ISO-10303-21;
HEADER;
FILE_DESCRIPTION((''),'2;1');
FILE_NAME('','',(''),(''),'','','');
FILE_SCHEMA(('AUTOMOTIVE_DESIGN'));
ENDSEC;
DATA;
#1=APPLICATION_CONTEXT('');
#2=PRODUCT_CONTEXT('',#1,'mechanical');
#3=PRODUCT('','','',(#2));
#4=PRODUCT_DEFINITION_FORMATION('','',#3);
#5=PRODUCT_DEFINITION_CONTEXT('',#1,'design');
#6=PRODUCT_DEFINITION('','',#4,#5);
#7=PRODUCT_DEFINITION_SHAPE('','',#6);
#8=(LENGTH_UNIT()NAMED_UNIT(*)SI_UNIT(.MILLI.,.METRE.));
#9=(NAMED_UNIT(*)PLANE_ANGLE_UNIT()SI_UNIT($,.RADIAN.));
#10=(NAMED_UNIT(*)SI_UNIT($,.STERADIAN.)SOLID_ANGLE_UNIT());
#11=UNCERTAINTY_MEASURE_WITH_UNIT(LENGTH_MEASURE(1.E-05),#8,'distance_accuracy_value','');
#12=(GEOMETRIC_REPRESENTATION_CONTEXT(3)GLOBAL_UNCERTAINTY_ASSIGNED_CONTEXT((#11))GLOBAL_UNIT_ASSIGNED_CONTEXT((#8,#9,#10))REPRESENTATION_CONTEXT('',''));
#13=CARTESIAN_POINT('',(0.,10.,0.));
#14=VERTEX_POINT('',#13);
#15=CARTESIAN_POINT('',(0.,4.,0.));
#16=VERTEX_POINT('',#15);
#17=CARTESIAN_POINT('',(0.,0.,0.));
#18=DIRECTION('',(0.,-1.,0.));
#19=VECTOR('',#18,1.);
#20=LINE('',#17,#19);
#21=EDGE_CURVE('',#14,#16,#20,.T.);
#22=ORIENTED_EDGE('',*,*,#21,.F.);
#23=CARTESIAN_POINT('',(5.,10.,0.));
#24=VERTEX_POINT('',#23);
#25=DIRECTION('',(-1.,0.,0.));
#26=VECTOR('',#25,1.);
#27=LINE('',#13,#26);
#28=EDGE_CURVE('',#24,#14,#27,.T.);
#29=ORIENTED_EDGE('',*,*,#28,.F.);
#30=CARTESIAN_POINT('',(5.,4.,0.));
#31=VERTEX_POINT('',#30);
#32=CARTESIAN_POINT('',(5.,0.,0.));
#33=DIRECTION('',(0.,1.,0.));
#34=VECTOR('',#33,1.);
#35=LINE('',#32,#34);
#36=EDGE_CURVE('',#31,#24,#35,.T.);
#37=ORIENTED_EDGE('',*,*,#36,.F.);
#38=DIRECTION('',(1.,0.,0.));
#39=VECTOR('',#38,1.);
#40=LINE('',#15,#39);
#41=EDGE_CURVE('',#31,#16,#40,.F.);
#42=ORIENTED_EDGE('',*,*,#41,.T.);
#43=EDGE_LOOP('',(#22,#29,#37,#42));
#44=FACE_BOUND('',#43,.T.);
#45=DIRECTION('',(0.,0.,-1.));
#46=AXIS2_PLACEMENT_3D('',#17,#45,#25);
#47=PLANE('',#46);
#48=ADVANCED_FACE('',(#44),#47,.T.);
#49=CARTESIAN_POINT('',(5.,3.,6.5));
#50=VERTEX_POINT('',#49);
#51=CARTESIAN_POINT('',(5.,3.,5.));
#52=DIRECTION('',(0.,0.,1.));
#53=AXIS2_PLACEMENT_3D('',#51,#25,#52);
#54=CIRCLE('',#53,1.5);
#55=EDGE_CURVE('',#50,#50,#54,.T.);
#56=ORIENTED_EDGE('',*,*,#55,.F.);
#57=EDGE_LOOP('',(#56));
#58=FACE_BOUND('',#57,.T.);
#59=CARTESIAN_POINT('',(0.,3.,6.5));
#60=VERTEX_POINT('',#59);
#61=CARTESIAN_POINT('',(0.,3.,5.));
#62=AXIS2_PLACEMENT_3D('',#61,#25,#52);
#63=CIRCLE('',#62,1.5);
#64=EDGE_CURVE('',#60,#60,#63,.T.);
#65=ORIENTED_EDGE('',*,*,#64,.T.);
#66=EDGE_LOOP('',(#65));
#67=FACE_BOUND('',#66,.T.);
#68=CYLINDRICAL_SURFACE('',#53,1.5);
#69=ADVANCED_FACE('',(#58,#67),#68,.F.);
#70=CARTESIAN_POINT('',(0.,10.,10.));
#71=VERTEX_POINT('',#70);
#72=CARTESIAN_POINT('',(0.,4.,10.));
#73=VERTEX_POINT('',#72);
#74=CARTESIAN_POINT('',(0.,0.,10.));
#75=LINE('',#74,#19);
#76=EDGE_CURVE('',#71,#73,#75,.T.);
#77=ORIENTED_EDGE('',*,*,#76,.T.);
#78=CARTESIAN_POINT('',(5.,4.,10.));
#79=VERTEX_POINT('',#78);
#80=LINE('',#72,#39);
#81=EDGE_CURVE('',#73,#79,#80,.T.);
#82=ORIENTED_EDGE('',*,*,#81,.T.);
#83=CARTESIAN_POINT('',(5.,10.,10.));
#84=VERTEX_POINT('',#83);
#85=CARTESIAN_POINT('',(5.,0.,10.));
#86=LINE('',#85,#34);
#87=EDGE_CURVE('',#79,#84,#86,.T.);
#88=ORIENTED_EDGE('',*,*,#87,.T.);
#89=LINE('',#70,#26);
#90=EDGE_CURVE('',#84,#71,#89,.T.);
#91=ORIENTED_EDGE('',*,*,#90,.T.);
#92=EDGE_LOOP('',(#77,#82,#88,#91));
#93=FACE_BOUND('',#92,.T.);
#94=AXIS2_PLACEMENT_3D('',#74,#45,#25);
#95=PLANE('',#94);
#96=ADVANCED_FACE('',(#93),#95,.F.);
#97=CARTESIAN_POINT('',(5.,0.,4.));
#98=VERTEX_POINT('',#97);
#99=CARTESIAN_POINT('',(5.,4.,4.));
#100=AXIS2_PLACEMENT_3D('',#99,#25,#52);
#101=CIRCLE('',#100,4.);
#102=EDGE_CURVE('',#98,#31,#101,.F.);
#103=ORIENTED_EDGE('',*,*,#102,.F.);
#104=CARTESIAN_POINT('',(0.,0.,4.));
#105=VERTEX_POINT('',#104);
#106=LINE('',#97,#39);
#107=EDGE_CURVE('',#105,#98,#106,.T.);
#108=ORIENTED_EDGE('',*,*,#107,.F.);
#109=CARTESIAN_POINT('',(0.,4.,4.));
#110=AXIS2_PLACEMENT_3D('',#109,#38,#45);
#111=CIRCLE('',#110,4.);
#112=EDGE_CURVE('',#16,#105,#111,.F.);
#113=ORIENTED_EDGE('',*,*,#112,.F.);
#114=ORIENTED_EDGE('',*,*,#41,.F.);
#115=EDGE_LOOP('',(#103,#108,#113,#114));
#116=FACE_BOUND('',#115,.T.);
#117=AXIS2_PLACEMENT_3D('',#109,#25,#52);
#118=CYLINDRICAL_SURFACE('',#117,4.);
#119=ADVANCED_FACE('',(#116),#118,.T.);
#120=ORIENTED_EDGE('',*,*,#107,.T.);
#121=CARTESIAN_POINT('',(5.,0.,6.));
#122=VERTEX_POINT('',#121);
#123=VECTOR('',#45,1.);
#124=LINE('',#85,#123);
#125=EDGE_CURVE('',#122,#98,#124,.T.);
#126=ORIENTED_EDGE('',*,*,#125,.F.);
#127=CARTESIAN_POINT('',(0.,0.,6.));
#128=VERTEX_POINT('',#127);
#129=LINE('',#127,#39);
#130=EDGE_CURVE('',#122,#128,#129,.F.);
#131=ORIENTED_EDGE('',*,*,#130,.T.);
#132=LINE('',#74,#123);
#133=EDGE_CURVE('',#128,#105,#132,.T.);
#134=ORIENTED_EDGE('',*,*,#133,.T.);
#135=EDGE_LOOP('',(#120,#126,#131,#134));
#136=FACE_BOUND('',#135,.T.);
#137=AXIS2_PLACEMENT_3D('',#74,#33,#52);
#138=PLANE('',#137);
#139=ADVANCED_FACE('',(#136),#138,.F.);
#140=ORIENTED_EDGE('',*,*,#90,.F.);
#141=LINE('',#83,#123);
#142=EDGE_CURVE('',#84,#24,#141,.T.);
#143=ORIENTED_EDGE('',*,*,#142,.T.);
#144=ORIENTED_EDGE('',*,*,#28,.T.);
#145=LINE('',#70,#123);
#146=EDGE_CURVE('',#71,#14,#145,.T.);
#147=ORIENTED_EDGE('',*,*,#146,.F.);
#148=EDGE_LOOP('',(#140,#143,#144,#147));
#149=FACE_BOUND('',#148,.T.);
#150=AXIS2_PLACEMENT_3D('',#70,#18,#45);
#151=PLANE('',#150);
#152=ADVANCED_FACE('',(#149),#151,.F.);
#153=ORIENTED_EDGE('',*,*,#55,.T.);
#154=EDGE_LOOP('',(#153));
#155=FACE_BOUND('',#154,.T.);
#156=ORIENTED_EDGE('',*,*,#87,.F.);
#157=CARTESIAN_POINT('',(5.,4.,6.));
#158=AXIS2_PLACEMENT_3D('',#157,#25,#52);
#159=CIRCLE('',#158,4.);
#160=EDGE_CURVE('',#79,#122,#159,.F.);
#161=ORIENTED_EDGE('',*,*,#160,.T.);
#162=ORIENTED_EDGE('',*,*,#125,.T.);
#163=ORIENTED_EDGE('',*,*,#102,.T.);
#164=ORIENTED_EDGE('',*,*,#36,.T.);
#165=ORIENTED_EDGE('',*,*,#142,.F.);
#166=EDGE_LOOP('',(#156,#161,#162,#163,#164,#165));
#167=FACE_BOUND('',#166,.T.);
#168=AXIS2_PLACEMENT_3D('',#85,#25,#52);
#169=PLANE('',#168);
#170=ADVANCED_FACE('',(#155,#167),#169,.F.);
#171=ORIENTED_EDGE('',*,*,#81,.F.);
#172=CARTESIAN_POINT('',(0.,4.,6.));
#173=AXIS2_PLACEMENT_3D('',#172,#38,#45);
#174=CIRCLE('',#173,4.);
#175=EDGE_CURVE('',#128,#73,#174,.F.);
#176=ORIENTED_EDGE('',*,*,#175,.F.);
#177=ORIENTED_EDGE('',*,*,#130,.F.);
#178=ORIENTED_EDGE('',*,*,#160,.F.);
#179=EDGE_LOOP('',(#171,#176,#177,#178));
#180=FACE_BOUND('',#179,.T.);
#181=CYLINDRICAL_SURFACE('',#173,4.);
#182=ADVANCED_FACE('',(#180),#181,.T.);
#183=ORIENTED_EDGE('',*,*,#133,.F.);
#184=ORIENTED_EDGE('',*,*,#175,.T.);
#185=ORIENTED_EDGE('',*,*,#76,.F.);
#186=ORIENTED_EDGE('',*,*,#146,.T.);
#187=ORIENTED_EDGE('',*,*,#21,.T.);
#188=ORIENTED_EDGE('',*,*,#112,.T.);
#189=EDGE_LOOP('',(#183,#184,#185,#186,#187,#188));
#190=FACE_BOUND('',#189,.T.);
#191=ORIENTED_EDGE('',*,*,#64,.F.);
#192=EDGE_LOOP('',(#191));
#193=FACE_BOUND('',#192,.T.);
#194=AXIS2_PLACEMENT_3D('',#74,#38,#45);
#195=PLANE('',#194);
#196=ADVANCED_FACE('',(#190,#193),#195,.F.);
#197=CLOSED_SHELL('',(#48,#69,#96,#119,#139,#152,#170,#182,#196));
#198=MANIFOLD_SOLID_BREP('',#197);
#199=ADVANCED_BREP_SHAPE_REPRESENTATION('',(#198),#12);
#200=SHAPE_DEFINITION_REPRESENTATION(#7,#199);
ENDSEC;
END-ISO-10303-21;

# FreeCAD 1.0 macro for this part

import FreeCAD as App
import Part
import Sketcher

V = App.Vector
Q = App.Units.Quantity


def edges_at(feature, points):
    """Names of the edges that pass closest to the given points."""
    edges = feature.Shape.Edges
    near = lambda p: min(range(len(edges)), key=lambda i: edges[i].distToShape(Part.Vertex(*p))[0])
    return sorted({f"Edge{near(p) + 1}" for p in points})

doc = App.newDocument("Part")
body = doc.addObject("PartDesign::Body", "Body")

# Sketch on XY plane
sketch1 = body.newObject("Sketcher::SketchObject", "Sketch")
sketch1.AttachmentSupport = (doc.getObject("XY_Plane"), [""])
sketch1.MapMode = "FlatFace"
sketch1.addGeometry(Part.LineSegment(V(0, 10, 0), V(0, 0, 0)), False)
sketch1.addGeometry(Part.LineSegment(V(0, 0, 0), V(5, 0, 0)), False)
sketch1.addGeometry(Part.LineSegment(V(5, 0, 0), V(5, 10, 0)), False)
sketch1.addGeometry(Part.LineSegment(V(5, 10, 0), V(0, 10, 0)), False)
sketch1.addConstraint(Sketcher.Constraint("Coincident", 0, 2, 1, 1))
sketch1.addConstraint(Sketcher.Constraint("Coincident", 1, 2, 2, 1))
sketch1.addConstraint(Sketcher.Constraint("Coincident", 2, 2, 3, 1))
sketch1.addConstraint(Sketcher.Constraint("Coincident", 3, 2, 0, 1))
sketch1.addConstraint(Sketcher.Constraint("Vertical", 0))
sketch1.addConstraint(Sketcher.Constraint("Horizontal", 1))
sketch1.addConstraint(Sketcher.Constraint("Vertical", 2))
sketch1.addConstraint(Sketcher.Constraint("Horizontal", 3))
sketch1.addConstraint(Sketcher.Constraint("Coincident", 0, 2, -1, 1))
sketch1.addConstraint(Sketcher.Constraint("DistanceX", 1, 1, 1, 2, Q("5 mm")))
sketch1.addConstraint(Sketcher.Constraint("DistanceY", 0, 2, 0, 1, Q("10 mm")))
pad1 = body.newObject("PartDesign::Pad", "Pad")
pad1.Profile = sketch1
pad1.Length = 10

# Sketch on YZ plane
sketch2 = body.newObject("Sketcher::SketchObject", "Sketch001")
sketch2.AttachmentSupport = (doc.getObject("YZ_Plane"), [""])
sketch2.MapMode = "FlatFace"
sketch2.addGeometry(Part.Circle(V(3, 5, 0), V(0, 0, 1), 1.5), False)
sketch2.addConstraint(Sketcher.Constraint("Diameter", 0, Q("3 mm")))
sketch2.addConstraint(Sketcher.Constraint("DistanceX", -1, 1, 0, 3, Q("3 mm")))
sketch2.addConstraint(Sketcher.Constraint("DistanceY", -1, 1, 0, 3, Q("5 mm")))
pocket1 = body.newObject("PartDesign::Pocket", "Pocket")
pocket1.Profile = sketch2
pocket1.Type = "ThroughAll"
pocket1.Reversed = True
doc.recompute()

fillet = body.newObject("PartDesign::Fillet", "Fillet")
fillet.Base = (pocket1, edges_at(pocket1, [(2.5, 0, 0), (2.5, 0, 10)]))
fillet.Radius = 4

doc.recompute()
